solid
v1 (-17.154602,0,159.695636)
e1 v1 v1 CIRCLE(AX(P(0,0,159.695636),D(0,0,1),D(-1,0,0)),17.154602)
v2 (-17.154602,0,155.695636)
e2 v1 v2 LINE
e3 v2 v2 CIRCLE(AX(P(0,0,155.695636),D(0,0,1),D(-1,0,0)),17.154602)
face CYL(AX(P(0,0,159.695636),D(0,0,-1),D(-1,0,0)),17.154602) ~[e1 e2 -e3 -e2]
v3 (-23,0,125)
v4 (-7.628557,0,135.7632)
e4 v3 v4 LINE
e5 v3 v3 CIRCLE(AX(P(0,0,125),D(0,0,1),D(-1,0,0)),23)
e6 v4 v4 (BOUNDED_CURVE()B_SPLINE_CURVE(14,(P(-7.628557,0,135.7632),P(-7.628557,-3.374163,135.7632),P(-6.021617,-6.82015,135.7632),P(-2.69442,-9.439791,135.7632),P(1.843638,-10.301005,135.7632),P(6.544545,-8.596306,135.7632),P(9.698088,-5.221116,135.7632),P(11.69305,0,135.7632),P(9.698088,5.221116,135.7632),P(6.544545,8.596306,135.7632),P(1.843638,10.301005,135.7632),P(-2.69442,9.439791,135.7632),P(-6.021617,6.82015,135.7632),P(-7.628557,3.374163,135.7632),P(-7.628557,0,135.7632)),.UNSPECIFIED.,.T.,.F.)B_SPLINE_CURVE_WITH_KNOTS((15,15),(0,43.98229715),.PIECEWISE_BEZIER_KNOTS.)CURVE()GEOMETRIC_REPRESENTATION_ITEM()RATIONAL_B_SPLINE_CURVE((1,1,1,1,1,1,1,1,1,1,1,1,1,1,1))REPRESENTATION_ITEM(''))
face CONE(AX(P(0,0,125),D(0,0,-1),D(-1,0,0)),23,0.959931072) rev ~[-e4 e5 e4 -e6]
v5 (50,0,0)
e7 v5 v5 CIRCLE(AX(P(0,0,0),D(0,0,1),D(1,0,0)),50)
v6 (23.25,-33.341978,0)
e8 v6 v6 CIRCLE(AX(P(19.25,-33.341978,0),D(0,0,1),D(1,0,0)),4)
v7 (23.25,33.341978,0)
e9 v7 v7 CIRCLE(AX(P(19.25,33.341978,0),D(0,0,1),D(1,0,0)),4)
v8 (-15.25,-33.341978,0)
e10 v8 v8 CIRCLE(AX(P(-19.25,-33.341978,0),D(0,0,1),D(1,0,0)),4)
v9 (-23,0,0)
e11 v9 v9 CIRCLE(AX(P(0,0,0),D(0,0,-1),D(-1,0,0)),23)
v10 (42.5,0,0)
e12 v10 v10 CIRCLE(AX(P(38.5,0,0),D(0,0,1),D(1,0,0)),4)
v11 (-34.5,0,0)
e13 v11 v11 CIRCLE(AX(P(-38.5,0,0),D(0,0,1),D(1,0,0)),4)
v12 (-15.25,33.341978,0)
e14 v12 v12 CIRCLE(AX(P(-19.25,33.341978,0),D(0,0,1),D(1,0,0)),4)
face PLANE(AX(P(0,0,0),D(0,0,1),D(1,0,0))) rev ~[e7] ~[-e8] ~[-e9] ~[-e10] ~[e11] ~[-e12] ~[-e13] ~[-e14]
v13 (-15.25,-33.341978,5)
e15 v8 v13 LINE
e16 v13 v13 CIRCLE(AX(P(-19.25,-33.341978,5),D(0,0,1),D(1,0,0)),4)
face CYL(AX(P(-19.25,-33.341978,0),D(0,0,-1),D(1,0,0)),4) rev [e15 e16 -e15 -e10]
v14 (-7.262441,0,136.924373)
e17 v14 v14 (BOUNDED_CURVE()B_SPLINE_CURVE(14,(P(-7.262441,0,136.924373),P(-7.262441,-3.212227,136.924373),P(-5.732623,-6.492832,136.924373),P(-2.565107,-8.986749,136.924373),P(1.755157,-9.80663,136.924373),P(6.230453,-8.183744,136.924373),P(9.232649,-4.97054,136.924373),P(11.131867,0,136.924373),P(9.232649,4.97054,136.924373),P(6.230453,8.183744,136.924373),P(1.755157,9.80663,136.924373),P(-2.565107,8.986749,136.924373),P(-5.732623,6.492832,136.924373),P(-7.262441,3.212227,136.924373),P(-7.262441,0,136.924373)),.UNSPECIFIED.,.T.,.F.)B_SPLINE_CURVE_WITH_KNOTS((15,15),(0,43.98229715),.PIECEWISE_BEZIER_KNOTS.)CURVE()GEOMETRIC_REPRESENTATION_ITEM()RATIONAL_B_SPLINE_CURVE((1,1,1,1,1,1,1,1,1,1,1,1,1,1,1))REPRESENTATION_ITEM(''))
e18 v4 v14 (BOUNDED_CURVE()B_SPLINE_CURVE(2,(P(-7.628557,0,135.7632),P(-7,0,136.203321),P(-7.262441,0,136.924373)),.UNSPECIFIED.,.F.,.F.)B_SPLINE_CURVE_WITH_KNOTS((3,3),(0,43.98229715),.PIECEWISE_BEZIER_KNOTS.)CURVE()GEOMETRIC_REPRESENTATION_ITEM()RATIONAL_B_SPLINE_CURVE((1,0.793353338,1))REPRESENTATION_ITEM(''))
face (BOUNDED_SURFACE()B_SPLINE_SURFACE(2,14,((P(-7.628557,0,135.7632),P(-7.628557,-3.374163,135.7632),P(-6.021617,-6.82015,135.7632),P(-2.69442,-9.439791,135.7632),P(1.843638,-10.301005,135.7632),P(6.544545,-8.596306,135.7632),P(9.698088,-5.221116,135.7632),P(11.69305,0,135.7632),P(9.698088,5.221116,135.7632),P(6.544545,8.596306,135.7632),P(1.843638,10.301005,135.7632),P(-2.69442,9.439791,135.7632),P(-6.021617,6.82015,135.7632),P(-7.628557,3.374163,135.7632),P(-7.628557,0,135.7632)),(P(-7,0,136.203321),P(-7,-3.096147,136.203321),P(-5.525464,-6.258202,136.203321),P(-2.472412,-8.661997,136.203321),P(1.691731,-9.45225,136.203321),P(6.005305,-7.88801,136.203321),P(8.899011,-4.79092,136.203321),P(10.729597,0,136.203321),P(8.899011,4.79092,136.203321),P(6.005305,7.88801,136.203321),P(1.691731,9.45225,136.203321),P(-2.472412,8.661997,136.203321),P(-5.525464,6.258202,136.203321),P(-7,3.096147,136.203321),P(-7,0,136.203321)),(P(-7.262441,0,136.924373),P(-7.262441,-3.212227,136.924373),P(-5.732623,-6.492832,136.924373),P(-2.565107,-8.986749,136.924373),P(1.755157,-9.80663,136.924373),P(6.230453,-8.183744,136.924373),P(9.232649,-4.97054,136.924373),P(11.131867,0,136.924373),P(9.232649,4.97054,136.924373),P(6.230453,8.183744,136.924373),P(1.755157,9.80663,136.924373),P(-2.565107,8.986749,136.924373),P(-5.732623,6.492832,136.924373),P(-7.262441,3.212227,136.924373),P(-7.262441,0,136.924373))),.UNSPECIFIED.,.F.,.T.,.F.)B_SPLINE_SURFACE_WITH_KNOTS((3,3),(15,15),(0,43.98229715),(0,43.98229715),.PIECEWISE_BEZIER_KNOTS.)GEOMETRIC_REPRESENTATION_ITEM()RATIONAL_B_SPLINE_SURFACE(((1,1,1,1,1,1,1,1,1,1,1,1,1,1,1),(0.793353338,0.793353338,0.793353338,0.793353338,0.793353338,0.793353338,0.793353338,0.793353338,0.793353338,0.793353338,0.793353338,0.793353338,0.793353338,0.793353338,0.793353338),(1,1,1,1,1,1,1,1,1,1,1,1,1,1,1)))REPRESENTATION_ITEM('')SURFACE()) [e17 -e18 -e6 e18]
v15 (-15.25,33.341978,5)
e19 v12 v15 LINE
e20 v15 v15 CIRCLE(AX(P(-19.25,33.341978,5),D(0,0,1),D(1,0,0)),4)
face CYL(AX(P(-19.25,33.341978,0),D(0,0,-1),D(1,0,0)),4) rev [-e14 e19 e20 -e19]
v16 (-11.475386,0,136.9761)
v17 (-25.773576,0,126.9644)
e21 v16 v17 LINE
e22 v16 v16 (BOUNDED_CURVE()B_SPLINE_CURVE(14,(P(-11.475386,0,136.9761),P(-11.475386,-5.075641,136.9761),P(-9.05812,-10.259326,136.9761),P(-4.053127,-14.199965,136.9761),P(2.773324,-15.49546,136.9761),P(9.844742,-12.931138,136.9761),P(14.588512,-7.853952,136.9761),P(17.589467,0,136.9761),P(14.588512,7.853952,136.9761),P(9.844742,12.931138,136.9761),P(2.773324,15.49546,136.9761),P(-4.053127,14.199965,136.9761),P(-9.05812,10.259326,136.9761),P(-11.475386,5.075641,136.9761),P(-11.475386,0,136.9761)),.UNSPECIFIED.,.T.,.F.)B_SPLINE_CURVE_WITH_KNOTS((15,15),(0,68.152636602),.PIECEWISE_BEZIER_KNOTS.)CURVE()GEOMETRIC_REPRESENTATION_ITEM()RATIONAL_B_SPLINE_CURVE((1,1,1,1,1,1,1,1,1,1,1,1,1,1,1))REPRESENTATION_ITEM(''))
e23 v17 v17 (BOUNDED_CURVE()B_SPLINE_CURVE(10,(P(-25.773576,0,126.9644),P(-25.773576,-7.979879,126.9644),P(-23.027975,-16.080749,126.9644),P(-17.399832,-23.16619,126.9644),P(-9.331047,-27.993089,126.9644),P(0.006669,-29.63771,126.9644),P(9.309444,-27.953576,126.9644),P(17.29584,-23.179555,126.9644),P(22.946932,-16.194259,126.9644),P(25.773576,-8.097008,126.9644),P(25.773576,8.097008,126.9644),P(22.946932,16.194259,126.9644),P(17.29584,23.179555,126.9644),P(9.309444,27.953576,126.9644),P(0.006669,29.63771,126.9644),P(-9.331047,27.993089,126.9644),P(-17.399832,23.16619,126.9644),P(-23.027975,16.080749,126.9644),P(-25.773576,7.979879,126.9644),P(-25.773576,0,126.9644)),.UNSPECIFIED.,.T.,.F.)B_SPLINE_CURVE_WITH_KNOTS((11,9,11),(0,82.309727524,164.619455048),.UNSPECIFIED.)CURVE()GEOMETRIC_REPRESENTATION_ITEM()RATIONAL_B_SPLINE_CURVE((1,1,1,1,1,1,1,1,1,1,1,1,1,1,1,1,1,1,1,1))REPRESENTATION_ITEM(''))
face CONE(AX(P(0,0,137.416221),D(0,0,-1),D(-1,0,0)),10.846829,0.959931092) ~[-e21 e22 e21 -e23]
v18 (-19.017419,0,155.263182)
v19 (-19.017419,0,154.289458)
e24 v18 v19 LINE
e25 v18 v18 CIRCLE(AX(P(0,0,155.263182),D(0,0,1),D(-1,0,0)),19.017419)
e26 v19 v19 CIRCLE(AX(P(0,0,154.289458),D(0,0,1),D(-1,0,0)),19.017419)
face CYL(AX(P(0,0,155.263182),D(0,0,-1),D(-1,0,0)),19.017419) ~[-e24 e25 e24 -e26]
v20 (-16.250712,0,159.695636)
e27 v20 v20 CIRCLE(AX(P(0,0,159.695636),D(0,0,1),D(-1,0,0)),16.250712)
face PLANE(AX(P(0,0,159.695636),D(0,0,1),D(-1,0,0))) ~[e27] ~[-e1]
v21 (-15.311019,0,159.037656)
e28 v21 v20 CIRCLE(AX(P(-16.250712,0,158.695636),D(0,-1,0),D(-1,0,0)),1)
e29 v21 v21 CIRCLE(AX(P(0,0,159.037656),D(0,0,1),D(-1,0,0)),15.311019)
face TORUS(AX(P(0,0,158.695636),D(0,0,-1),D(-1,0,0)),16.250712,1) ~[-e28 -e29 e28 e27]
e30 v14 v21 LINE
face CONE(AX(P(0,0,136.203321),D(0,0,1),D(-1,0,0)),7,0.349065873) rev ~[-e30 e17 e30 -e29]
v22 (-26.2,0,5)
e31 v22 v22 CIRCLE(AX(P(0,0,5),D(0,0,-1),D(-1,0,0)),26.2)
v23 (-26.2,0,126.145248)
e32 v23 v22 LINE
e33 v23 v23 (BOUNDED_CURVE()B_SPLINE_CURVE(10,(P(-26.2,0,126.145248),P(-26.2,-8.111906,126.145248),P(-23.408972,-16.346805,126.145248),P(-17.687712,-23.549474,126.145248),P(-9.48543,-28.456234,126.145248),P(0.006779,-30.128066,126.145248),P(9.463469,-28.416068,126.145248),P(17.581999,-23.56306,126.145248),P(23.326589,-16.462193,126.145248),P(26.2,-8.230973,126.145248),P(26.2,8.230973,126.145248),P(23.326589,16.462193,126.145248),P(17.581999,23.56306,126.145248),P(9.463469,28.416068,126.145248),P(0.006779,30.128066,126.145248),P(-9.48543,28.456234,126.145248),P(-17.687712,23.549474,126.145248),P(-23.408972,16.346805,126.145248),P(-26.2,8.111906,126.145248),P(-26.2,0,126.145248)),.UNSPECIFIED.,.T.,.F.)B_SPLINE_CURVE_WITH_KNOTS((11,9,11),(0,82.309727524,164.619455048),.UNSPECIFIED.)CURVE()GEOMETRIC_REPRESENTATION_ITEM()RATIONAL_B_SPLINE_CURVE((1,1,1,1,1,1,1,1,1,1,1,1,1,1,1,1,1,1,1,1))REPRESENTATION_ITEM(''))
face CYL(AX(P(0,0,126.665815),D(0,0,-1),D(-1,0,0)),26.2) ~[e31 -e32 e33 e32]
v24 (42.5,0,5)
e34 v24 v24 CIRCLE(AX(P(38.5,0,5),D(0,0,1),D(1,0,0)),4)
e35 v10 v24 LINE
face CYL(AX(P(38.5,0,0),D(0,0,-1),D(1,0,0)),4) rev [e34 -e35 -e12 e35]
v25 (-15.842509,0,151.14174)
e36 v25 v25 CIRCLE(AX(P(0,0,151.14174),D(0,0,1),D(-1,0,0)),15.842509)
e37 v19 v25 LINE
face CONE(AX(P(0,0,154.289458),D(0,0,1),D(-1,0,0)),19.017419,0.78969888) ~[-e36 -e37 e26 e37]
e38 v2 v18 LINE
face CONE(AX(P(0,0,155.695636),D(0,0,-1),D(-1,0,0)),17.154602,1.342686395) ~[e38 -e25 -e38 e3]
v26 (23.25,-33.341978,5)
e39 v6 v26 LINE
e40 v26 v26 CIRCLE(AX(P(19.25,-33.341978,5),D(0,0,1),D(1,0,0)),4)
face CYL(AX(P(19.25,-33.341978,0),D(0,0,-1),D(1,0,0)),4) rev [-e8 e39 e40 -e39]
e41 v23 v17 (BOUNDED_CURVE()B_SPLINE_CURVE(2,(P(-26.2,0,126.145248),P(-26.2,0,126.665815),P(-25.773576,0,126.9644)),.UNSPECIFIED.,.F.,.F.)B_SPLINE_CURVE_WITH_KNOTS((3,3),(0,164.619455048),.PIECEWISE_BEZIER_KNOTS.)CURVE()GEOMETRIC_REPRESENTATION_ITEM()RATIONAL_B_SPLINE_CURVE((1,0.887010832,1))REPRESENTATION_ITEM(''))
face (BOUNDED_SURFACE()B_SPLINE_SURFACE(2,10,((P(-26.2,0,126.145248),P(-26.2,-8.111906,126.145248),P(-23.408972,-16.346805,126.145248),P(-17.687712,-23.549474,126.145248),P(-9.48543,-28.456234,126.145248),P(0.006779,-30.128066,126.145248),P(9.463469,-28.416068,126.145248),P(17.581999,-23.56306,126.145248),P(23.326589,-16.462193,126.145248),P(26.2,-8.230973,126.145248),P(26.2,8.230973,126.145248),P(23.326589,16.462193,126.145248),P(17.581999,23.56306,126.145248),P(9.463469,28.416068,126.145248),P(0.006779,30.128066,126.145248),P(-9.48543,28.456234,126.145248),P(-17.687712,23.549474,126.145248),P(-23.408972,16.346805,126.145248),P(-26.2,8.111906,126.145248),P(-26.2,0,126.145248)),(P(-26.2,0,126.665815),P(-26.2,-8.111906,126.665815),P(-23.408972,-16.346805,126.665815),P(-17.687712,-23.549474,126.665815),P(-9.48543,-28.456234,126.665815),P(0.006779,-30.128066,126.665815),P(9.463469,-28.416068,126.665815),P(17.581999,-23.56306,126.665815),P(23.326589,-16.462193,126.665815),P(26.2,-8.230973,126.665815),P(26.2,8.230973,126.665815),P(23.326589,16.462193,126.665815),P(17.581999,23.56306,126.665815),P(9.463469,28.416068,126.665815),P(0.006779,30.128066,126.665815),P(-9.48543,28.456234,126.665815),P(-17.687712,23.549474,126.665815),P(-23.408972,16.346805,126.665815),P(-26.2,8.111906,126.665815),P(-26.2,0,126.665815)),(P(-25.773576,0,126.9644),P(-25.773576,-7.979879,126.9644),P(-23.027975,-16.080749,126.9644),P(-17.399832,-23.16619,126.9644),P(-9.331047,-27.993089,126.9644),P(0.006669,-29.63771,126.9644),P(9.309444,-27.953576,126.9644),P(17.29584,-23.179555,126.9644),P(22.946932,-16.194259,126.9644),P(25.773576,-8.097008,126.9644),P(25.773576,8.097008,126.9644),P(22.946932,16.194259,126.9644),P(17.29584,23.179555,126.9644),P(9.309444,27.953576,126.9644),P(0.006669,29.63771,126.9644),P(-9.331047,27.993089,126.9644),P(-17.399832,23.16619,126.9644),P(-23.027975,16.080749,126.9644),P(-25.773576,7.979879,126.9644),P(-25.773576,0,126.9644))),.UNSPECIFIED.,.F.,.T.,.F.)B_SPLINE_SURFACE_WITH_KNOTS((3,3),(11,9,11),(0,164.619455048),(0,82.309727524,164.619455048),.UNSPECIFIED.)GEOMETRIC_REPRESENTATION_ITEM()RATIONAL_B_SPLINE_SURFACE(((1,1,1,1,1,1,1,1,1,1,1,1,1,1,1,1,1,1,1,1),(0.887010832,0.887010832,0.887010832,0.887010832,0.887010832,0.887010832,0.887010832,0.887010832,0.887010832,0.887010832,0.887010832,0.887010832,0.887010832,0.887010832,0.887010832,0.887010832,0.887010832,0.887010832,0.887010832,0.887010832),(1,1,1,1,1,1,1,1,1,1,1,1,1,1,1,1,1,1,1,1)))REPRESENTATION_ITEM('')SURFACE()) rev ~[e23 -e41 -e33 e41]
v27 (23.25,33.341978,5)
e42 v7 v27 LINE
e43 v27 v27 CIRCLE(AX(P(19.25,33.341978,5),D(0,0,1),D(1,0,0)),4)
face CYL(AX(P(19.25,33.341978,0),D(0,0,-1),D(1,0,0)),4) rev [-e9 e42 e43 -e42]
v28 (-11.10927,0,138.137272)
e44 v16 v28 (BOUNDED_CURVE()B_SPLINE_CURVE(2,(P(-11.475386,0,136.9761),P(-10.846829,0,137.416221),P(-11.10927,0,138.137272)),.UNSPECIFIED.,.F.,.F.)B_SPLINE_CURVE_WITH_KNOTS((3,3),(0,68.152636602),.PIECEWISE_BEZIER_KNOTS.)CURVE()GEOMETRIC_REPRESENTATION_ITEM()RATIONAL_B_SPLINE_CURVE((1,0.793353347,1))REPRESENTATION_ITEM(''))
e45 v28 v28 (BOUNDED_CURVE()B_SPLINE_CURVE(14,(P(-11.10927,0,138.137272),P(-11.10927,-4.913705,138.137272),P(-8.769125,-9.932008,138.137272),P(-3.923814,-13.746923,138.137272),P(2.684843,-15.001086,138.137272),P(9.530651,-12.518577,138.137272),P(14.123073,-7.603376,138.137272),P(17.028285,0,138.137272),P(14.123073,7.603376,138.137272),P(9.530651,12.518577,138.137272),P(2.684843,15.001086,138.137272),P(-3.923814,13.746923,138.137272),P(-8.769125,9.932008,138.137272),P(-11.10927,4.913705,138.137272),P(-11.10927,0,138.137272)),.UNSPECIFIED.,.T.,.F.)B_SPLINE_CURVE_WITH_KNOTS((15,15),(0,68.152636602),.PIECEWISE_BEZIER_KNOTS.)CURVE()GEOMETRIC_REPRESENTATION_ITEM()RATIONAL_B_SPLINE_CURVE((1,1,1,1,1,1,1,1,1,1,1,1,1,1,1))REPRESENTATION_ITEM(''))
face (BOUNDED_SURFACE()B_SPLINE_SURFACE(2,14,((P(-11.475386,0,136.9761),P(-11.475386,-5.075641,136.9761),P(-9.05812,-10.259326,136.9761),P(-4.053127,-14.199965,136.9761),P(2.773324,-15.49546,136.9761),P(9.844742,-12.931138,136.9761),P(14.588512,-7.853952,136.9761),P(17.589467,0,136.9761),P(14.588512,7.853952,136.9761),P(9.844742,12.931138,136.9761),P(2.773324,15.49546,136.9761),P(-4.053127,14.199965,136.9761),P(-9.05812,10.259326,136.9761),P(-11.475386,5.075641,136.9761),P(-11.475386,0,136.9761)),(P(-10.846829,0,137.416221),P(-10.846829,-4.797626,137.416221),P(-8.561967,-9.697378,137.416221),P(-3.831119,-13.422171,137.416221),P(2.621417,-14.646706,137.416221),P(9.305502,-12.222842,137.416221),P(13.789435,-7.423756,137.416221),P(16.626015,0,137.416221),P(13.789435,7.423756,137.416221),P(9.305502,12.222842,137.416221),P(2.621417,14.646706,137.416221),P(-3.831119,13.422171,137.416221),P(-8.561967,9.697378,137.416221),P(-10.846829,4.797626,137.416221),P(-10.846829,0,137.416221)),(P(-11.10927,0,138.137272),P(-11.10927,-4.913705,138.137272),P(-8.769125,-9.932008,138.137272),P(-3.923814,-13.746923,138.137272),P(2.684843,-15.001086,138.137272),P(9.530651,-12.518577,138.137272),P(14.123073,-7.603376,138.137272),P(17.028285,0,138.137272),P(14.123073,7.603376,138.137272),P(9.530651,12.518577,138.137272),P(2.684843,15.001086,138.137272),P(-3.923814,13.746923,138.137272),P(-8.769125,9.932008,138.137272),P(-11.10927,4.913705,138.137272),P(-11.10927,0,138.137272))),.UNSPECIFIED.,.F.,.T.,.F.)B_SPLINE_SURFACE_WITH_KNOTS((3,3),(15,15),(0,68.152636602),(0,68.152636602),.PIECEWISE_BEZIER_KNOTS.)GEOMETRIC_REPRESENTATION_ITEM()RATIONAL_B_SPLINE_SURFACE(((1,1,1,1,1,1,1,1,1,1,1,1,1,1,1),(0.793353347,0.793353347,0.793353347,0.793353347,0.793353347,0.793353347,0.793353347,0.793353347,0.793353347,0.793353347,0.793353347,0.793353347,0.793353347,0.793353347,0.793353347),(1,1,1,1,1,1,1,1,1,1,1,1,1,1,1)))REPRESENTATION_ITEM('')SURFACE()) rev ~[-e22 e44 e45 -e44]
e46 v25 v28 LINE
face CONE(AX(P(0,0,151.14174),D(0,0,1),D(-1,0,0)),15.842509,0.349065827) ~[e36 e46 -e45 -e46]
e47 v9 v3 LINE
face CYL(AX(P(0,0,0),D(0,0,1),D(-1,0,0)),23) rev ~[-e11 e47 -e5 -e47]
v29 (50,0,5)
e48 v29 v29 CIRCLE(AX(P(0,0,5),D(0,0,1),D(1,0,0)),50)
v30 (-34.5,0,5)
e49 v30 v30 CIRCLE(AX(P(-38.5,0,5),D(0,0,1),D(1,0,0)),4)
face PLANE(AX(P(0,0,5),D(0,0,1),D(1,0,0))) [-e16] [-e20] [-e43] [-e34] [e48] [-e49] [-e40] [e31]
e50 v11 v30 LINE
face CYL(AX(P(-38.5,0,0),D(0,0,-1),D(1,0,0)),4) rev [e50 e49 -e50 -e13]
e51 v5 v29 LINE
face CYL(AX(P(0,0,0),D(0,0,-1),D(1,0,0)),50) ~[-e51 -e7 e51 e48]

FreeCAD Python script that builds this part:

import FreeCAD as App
import Part
import Sketcher
Q = App.Units.Quantity


def edges_at(feature, points):
    """Names of the edges that pass closest to the given points."""
    edges = feature.Shape.Edges
    near = lambda p: min(range(len(edges)), key=lambda i: edges[i].distToShape(Part.Vertex(*p))[0])
    return sorted({f"Edge{near(p) + 1}" for p in points})


def add_polygon(sketch, points):
    """Adds a closed chain of lines whose ends are joined by coincident constraints."""
    first, n = sketch.GeometryCount, len(points)
    for a, b in zip(points, points[1:] + points[:1]):
        sketch.addGeometry(Part.LineSegment(App.Vector(*a, 0), App.Vector(*b, 0)), False)
    for i in range(n):
        sketch.addConstraint(Sketcher.Constraint("Coincident", first + i, 2, first + (i + 1) % n, 1))

doc = App.newDocument("Part")
params = doc.addObject("Spreadsheet::Sheet", "Params")
for row, (alias, value) in enumerate([
    ("sketch1_diameter", "100 mm"),
    ("sketch1_diameter2", "8 mm"),
    ("sketch1_diameter3", "46 mm"),
    ("pad1_length", "5 mm"),
    ("sketch2_height", "125 mm"),
    ("sketch2_height2", "4 mm"),
    ("sketch2_length", "25 mm"),
    ("sketch2_width", "3.2 mm"),
    ("revolution_angle", "360 deg"),
    ("fillet_radius", "1 mm"),
    ("fillet2_radius", "1 mm"),
], start=1):
    params.set(f"A{row}", alias)
    params.set(f"B{row}", "=" + value)
    params.setAlias(f"B{row}", alias)

body = doc.addObject("PartDesign::Body", "Body")

sketch1 = doc.addObject("Sketcher::SketchObject", "Sketch")
body.addObject(sketch1)
sketch1.AttachmentSupport = (doc.XY_Plane, [""])
sketch1.MapMode = "FlatFace"
sketch1.addGeometry([
    Part.Circle(App.Vector(0, 0, 0), App.Vector(0, 0, 1), 50),
    Part.Circle(App.Vector(-19.2, -33.3, 0), App.Vector(0, 0, 1), 4),
    Part.Circle(App.Vector(19.2, -33.3, 0), App.Vector(0, 0, 1), 4),
    Part.Circle(App.Vector(-38.5, 0, 0), App.Vector(0, 0, 1), 4),
    Part.Circle(App.Vector(-19.2, 33.3, 0), App.Vector(0, 0, 1), 4),
    Part.Circle(App.Vector(0, 0, 0), App.Vector(0, 0, 1), 23),
    Part.Circle(App.Vector(38.5, 0, 0), App.Vector(0, 0, 1), 4),
    Part.Circle(App.Vector(19.2, 33.3, 0), App.Vector(0, 0, 1), 4),
], False)
sketch1.addConstraint([
    Sketcher.Constraint("Coincident", 0, 3, -1, 1),
    Sketcher.Constraint("Coincident", 5, 3, -1, 1),
    Sketcher.Constraint("Equal", 1, 2),
    Sketcher.Constraint("Equal", 2, 3),
    Sketcher.Constraint("Equal", 3, 4),
    Sketcher.Constraint("Equal", 4, 6),
    Sketcher.Constraint("Equal", 6, 7),
    Sketcher.Constraint("Symmetric", 2, 3, 4, 3, -1, 1),
    Sketcher.Constraint("Symmetric", 3, 3, 6, 3, -1, 1),
    Sketcher.Constraint("Symmetric", 1, 3, 7, 3, -1, 1),
    Sketcher.Constraint("Symmetric", 1, 3, 2, 3, -2),
    Sketcher.Constraint("PointOnObject", 3, 3, -1),
    Sketcher.Constraint("Diameter", 0, 100.0),
    Sketcher.Constraint("Diameter", 1, 8.0),
    Sketcher.Constraint("Diameter", 5, 46.0),
    Sketcher.Constraint("DistanceX", 3, 3, -1, 1, 38.5),
    Sketcher.Constraint("DistanceX", 1, 3, 2, 3, 38.5),
    Sketcher.Constraint("DistanceY", 1, 3, -1, 1, 33.341978),
])
sketch1.setExpression("Constraints[12]", "Params.sketch1_diameter")
sketch1.setExpression("Constraints[13]", "Params.sketch1_diameter2")
sketch1.setExpression("Constraints[14]", "Params.sketch1_diameter3")
pad1 = doc.addObject("PartDesign::Pad", "Pad")
body.addObject(pad1)
pad1.Profile = sketch1
pad1.setExpression("Length", "Params.pad1_length")

sketch2 = doc.addObject("Sketcher::SketchObject", "Sketch001")
body.addObject(sketch2)
sketch2.AttachmentSupport = (doc.XZ_Plane, [""])
sketch2.MapMode = "FlatFace"
add_polygon(sketch2, [(-26.2, 0), (-23, 0), (-23, 125), (-7, 136.2), (-15.6, 159.7), (-17.2, 159.7), (-17.2, 155.7), (-19, 155.3), (-19, 154.3), (-15.8, 151.1), (-10.8, 137.4), (-26.2, 126.7)])
sketch2.addConstraint([
    Sketcher.Constraint("Horizontal", 0),
    Sketcher.Constraint("Vertical", 1),
    Sketcher.Constraint("Horizontal", 4),
    Sketcher.Constraint("Vertical", 5),
    Sketcher.Constraint("Vertical", 7),
    Sketcher.Constraint("Vertical", 11),
    Sketcher.Constraint("PointOnObject", 0, 2, -1),
    Sketcher.Constraint("Parallel", 3, 9),
    Sketcher.Constraint("Parallel", 2, 10),
    Sketcher.Constraint("DistanceY", 1, 1, 1, 2, 125.0),
    Sketcher.Constraint("DistanceY", 5, 2, 5, 1, 4.0),
    Sketcher.Constraint("Angle", 2, Q("35.000001 deg")),
    Sketcher.Constraint("Angle", 3, Q("110.000001 deg")),
    Sketcher.Constraint("Distance", 3, 25.0),
    Sketcher.Constraint("DistanceX", 0, 1, 0, 2, 3.2),
    Sketcher.Constraint("DistanceX", 0, 2, -1, 1, 23.0),
    Sketcher.Constraint("DistanceX", 2, 2, -1, 1, 7.0),
    Sketcher.Constraint("DistanceX", 4, 2, 4, 1, 1.604098),
    Sketcher.Constraint("DistanceY", 2, 2, 9, 2, 1.2129),
    Sketcher.Constraint("Distance", 10, 18.742761),
    Sketcher.Constraint("DistanceY", 7, 2, 7, 1, 0.973724),
    Sketcher.Constraint("DistanceX", 6, 2, -1, 1, 19.017419),
    Sketcher.Constraint("DistanceY", -1, 1, 6, 2, 155.263182),
    Sketcher.Constraint("DistanceX", 8, 2, -1, 1, 15.842509),
])
sketch2.setExpression("Constraints[21]", "Params.sketch2_height")
sketch2.setExpression("Constraints[22]", "Params.sketch2_height2")
sketch2.setExpression("Constraints[25]", "Params.sketch2_length")
sketch2.setExpression("Constraints[26]", "Params.sketch2_width")
revolution = doc.addObject("PartDesign::Revolution", "Revolution")
body.addObject(revolution)
revolution.Profile = sketch2
revolution.ReferenceAxis = (sketch2, ["V_Axis"])
revolution.setExpression("Angle", "Params.revolution_angle")
doc.recompute()

fillet = doc.addObject("PartDesign::Fillet", "Fillet")
body.addObject(fillet)
fillet.Base = (revolution, edges_at(revolution, [(7, 0, 136.203), (26.2, 0, 126.666), (15.551, 0, 159.696)]))
fillet.setExpression("Radius", "Params.fillet_radius")
doc.recompute()

fillet2 = doc.addObject("PartDesign::Fillet", "Fillet001")
body.addObject(fillet2)
fillet2.Base = (fillet, edges_at(fillet, [(10.847, 0, 137.416)]))
fillet2.setExpression("Radius", "Params.fillet2_radius")

doc.recompute()
